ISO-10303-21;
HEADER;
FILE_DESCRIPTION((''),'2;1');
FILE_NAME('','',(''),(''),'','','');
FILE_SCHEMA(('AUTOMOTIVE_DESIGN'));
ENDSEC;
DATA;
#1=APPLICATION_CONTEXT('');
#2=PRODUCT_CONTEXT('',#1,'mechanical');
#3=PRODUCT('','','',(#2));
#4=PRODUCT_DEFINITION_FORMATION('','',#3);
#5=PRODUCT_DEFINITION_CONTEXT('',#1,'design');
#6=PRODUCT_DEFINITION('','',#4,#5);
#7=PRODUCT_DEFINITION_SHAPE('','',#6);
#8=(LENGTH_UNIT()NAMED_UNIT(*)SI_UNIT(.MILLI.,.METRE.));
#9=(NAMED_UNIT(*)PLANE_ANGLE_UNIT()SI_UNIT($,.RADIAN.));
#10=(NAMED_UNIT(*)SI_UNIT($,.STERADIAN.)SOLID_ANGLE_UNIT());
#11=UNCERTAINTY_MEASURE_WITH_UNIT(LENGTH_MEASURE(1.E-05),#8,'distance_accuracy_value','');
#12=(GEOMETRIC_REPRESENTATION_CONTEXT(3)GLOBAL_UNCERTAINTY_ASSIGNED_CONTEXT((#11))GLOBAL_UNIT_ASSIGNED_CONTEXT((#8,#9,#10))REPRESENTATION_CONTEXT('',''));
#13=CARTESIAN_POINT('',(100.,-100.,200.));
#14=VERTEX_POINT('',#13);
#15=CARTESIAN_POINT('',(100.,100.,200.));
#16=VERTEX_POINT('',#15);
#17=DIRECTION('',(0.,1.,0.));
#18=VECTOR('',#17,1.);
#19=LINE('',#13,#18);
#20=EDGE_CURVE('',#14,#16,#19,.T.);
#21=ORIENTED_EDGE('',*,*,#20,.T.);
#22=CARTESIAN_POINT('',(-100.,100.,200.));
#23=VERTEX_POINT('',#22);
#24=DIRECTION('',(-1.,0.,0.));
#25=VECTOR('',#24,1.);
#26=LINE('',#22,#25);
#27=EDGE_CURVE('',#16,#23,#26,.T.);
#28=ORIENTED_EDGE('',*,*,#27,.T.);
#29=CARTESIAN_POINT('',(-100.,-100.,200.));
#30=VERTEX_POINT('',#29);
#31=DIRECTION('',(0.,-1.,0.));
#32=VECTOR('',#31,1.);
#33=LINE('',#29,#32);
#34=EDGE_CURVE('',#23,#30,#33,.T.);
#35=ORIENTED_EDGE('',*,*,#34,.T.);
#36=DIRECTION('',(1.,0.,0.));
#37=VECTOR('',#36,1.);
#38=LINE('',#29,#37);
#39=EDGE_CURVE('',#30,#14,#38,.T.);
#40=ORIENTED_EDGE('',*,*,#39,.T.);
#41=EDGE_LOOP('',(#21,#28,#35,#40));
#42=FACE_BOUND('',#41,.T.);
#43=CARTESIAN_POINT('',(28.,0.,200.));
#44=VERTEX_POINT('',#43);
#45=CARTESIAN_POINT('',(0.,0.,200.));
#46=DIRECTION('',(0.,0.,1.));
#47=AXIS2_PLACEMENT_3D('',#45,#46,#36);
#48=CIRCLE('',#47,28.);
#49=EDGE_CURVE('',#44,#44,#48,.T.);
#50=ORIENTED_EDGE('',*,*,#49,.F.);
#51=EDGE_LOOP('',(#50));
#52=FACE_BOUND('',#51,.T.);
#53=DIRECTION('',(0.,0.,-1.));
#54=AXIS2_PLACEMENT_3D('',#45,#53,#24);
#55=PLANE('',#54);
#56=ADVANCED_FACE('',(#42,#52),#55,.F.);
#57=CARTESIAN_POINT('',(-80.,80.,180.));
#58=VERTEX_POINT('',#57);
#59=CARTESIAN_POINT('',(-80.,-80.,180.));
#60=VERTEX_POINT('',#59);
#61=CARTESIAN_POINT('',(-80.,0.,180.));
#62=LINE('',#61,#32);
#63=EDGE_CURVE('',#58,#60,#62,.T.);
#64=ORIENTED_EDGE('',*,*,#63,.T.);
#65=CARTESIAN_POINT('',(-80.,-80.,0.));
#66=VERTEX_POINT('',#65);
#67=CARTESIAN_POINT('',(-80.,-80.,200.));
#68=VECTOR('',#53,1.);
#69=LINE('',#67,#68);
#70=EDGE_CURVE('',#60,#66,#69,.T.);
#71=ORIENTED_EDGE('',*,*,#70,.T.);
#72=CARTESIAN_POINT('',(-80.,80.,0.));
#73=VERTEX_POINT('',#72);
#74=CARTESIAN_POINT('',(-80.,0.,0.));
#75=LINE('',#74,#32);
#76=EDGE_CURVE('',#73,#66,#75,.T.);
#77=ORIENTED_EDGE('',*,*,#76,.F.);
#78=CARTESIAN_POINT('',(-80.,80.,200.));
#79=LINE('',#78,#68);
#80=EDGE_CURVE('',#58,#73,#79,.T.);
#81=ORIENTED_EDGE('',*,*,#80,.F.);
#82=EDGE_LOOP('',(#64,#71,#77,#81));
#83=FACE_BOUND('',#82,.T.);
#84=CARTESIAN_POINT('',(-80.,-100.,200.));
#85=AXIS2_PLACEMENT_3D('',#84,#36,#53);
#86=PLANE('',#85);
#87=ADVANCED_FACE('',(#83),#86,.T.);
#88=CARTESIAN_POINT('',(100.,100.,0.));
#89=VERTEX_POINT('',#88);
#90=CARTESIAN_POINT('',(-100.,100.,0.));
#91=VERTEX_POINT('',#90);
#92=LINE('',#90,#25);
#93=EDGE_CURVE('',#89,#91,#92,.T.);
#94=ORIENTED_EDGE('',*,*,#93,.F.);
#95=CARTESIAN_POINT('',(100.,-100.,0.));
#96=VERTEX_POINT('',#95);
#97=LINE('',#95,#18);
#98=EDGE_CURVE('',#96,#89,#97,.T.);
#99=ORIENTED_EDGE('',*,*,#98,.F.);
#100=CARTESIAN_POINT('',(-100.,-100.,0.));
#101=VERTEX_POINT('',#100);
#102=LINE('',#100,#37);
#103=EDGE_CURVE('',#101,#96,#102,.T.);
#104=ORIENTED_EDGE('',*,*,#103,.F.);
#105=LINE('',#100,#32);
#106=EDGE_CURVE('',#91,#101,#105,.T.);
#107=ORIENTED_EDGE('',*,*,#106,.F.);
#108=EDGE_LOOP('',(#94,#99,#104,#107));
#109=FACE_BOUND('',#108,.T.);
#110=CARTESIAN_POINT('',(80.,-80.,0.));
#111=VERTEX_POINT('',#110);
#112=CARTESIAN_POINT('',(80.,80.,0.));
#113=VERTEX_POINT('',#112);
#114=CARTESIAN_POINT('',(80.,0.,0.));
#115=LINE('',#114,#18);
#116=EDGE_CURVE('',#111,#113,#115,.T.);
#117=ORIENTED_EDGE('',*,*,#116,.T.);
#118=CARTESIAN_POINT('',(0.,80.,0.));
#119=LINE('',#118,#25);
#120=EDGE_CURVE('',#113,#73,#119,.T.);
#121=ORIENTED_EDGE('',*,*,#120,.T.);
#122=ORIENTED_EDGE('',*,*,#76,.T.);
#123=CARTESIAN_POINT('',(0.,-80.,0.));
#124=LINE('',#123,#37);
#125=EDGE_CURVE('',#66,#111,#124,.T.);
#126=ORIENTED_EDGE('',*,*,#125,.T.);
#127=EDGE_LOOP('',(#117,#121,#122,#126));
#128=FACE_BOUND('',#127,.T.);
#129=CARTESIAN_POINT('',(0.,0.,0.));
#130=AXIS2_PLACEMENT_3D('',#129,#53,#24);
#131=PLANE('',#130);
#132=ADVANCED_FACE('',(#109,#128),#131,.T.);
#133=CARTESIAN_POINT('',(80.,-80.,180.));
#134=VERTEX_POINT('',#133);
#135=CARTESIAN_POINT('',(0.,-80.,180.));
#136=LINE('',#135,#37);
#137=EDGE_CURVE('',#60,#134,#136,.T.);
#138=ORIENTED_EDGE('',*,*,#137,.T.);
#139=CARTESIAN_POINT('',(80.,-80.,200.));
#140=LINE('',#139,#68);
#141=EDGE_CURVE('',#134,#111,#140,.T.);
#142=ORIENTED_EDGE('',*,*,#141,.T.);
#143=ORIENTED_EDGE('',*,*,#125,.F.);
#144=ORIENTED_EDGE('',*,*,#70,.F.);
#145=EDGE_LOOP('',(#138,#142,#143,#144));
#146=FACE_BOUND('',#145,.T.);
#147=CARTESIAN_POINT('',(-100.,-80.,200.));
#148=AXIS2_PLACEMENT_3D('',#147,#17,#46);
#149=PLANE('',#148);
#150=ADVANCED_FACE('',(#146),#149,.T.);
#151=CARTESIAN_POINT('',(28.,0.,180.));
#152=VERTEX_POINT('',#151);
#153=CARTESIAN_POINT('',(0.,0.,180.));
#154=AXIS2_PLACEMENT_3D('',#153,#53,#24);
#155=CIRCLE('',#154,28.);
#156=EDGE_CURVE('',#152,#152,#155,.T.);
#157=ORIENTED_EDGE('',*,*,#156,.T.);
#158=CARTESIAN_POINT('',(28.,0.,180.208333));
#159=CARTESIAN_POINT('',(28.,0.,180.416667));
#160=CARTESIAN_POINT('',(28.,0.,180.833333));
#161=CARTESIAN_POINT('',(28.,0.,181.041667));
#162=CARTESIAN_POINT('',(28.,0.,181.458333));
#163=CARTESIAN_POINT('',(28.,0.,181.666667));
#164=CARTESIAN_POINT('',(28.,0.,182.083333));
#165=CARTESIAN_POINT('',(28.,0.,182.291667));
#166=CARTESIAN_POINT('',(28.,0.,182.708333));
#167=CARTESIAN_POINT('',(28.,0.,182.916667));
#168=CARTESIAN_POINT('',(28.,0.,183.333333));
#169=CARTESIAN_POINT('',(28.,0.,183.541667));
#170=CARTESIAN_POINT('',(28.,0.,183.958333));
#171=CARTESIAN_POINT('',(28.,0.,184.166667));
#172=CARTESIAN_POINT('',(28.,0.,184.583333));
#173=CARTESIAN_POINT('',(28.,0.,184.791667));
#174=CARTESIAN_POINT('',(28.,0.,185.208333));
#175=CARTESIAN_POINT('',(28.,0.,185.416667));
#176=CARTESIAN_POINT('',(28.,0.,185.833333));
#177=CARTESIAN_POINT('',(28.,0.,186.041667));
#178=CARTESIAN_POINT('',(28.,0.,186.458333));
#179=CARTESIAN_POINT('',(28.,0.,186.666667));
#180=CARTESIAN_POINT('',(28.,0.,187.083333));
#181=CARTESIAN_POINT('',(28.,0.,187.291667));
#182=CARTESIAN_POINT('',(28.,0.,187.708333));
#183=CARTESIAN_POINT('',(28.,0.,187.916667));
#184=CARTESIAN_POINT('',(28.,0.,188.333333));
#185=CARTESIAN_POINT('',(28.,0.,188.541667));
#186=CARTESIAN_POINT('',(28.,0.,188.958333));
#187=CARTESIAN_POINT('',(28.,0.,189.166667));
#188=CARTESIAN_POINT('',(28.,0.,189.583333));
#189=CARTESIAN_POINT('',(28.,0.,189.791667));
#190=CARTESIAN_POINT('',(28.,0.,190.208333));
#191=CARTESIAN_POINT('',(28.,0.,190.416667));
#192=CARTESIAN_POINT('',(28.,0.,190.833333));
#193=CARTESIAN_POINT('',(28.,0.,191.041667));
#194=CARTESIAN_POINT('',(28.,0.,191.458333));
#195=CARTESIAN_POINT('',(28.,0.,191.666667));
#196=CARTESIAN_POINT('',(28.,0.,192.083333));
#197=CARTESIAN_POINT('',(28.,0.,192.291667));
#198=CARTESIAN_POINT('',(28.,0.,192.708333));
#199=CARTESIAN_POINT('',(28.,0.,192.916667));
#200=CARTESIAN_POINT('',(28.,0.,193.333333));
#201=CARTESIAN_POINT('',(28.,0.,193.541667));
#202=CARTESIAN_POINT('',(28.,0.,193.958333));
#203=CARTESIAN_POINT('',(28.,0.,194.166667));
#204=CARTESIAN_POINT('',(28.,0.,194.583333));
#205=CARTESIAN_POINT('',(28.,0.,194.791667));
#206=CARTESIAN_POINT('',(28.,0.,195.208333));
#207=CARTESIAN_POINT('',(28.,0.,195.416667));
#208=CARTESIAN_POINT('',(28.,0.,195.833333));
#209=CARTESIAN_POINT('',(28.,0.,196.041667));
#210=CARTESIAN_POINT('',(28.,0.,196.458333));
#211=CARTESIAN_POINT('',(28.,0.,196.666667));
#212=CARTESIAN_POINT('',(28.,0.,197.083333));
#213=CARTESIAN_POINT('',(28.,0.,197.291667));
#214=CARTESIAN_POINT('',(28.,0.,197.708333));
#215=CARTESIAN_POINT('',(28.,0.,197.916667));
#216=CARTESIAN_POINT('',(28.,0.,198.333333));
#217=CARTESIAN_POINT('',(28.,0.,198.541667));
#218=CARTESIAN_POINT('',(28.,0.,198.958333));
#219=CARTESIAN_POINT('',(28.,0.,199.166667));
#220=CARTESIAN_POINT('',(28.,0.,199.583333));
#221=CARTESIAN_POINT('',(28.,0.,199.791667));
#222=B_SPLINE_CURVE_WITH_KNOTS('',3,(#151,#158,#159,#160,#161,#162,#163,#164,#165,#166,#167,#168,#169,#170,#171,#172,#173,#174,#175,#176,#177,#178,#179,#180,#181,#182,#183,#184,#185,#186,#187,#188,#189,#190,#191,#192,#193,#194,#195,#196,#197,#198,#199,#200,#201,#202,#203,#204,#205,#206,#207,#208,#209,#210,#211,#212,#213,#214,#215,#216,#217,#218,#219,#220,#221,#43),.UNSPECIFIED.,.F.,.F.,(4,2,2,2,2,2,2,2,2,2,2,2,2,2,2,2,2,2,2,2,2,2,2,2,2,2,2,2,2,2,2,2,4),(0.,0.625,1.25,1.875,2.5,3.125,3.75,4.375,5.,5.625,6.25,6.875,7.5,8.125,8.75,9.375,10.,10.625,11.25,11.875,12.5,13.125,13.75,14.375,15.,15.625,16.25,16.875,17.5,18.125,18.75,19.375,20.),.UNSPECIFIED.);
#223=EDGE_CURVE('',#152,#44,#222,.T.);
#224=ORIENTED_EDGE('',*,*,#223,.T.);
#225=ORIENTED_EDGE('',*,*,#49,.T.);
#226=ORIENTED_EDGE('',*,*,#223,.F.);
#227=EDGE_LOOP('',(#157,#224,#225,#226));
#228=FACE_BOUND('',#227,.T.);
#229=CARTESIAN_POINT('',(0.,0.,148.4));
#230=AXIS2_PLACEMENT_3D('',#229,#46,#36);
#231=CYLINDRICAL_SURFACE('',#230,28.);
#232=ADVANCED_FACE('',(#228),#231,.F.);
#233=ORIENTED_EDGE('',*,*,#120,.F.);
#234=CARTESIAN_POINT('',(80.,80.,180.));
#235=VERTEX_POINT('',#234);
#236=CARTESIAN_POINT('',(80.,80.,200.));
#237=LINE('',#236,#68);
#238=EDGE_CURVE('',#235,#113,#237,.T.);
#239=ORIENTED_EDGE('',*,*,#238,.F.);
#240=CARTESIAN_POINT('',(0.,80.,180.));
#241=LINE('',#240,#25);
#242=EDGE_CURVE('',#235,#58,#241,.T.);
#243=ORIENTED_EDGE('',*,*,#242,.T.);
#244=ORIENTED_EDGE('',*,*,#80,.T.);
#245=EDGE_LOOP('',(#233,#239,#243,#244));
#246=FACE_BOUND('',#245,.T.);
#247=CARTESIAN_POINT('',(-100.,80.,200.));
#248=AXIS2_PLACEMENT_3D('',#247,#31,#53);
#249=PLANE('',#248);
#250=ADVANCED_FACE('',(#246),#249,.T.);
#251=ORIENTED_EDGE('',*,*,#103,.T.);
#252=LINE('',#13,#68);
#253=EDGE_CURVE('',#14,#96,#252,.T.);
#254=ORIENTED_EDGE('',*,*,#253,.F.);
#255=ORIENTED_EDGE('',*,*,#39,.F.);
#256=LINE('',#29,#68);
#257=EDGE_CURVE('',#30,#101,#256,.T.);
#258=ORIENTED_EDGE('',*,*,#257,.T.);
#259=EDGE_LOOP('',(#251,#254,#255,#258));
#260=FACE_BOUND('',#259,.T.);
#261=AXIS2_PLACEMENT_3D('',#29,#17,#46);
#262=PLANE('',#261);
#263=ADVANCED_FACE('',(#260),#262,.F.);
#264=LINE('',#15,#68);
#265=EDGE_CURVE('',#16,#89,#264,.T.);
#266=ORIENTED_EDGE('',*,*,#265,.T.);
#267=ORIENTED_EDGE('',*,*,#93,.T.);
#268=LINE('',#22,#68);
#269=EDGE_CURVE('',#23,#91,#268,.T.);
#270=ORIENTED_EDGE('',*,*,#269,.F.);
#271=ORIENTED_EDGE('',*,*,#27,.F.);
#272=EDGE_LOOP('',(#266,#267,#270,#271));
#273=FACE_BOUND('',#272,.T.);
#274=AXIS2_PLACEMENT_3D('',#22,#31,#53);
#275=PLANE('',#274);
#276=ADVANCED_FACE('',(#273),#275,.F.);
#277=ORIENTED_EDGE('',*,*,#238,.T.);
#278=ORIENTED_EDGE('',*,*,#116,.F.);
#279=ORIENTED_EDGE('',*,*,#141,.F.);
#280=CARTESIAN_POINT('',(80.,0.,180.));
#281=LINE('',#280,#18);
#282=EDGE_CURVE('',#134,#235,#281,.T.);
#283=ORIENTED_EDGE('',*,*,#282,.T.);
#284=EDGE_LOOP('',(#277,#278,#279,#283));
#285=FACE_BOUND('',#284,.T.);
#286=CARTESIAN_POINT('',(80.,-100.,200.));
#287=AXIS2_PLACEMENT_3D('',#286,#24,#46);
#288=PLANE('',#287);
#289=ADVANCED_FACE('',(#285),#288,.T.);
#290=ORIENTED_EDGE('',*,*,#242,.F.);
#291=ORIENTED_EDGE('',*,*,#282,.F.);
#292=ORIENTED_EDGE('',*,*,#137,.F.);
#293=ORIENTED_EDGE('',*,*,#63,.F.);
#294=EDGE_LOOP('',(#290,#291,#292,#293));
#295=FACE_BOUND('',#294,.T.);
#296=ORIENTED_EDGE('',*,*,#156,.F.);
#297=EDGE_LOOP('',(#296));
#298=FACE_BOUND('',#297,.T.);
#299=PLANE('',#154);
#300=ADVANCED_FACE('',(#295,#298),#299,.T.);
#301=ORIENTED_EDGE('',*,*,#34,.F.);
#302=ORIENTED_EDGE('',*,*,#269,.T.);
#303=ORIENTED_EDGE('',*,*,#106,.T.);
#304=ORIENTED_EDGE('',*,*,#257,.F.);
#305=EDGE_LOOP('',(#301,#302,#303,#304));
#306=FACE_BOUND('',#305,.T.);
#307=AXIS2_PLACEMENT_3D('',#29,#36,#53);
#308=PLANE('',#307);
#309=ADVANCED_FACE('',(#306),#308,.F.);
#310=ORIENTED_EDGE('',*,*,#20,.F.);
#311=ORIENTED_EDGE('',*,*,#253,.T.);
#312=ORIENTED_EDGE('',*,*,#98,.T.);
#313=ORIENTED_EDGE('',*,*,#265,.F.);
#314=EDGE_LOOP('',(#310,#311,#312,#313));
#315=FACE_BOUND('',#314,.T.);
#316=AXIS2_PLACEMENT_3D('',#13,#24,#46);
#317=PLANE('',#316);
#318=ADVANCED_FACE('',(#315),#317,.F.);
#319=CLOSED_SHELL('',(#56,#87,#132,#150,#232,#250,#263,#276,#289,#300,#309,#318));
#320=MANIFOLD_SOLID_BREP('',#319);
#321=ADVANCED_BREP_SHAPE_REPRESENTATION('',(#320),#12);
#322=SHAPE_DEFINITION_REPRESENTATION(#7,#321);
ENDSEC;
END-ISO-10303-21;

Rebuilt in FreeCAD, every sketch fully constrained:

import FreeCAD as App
import Part
import Sketcher
from FreeCAD import Vector


def faces_at(feature, points):
    """Names of the faces that lie closest to the given points."""
    faces = feature.Shape.Faces
    near = lambda p: min(range(len(faces)), key=lambda i: faces[i].distToShape(Part.Vertex(*p))[0])
    return sorted({f"Face{near(p) + 1}" for p in points})

doc = App.newDocument("Part")
params = doc.addObject("Spreadsheet::Sheet", "Params")
for row, (alias, value) in enumerate([
    ("sketch1_width", "200 mm"),
    ("pad1_length", "200 mm"),
    ("thickness_wall", "20 mm"),
    ("sketch2_diameter", "56 mm"),
    ("pocket1_length", "51.6 mm"),
], start=1):
    params.set(f"A{row}", alias)
    params.set(f"B{row}", "=" + value)
    params.setAlias(f"B{row}", alias)

body = doc.addObject("PartDesign::Body", "Body")

# Sketch on XY plane
sketch1 = body.newObject("Sketcher::SketchObject", "Sketch")
sketch1.AttachmentSupport = (doc.getObject("XY_Plane"), [""])
sketch1.MapMode = "FlatFace"
sketch1.addGeometry([
    Part.LineSegment(Vector(-100, 100, 0), Vector(-100, -100, 0)),
    Part.LineSegment(Vector(-100, -100, 0), Vector(100, -100, 0)),
    Part.LineSegment(Vector(100, -100, 0), Vector(100, 100, 0)),
    Part.LineSegment(Vector(100, 100, 0), Vector(-100, 100, 0)),
], False)
sketch1.addConstraint([
    Sketcher.Constraint("Coincident", 0, 2, 1, 1),
    Sketcher.Constraint("Coincident", 1, 2, 2, 1),
    Sketcher.Constraint("Coincident", 2, 2, 3, 1),
    Sketcher.Constraint("Coincident", 3, 2, 0, 1),
    Sketcher.Constraint("Vertical", 0),
    Sketcher.Constraint("Horizontal", 1),
    Sketcher.Constraint("Vertical", 2),
    Sketcher.Constraint("Horizontal", 3),
    Sketcher.Constraint("Symmetric", 0, 2, 2, 2, -1, 1),
    Sketcher.Constraint("Equal", 3, 0),
    Sketcher.Constraint("DistanceX", 1, 1, 1, 2, 200.0),
])
sketch1.setExpression("Constraints[10]", "Params.sketch1_width")
pad1 = body.newObject("PartDesign::Pad", "Pad")
pad1.Profile = sketch1
pad1.setExpression("Length", "Params.pad1_length")
doc.recompute()

thickness = body.newObject("PartDesign::Thickness", "Thickness")
thickness.Base = (pad1, faces_at(pad1, [(0, 0, 0)]))
thickness.setExpression("Value", "Params.thickness_wall")
thickness.Reversed = True
thickness.Join = "Intersection"

# Sketch on XY plane
sketch2 = body.newObject("Sketcher::SketchObject", "Sketch001")
sketch2.AttachmentSupport = (doc.getObject("XY_Plane"), [""])
sketch2.MapMode = "FlatFace"
sketch2.AttachmentOffset = App.Placement(Vector(0, 0, 200), App.Rotation())
sketch2.addGeometry(Part.Circle(Vector(0, 0, 0), Vector(0, 0, 1), 28), False)
sketch2.addConstraint([
    Sketcher.Constraint("Coincident", 0, 3, -1, 1),
    Sketcher.Constraint("Diameter", 0, 56.0),
])
sketch2.setExpression("Constraints[1]", "Params.sketch2_diameter")
pocket1 = body.newObject("PartDesign::Pocket", "Pocket")
pocket1.Profile = sketch2
pocket1.setExpression("Length", "Params.pocket1_length")

doc.recompute()
